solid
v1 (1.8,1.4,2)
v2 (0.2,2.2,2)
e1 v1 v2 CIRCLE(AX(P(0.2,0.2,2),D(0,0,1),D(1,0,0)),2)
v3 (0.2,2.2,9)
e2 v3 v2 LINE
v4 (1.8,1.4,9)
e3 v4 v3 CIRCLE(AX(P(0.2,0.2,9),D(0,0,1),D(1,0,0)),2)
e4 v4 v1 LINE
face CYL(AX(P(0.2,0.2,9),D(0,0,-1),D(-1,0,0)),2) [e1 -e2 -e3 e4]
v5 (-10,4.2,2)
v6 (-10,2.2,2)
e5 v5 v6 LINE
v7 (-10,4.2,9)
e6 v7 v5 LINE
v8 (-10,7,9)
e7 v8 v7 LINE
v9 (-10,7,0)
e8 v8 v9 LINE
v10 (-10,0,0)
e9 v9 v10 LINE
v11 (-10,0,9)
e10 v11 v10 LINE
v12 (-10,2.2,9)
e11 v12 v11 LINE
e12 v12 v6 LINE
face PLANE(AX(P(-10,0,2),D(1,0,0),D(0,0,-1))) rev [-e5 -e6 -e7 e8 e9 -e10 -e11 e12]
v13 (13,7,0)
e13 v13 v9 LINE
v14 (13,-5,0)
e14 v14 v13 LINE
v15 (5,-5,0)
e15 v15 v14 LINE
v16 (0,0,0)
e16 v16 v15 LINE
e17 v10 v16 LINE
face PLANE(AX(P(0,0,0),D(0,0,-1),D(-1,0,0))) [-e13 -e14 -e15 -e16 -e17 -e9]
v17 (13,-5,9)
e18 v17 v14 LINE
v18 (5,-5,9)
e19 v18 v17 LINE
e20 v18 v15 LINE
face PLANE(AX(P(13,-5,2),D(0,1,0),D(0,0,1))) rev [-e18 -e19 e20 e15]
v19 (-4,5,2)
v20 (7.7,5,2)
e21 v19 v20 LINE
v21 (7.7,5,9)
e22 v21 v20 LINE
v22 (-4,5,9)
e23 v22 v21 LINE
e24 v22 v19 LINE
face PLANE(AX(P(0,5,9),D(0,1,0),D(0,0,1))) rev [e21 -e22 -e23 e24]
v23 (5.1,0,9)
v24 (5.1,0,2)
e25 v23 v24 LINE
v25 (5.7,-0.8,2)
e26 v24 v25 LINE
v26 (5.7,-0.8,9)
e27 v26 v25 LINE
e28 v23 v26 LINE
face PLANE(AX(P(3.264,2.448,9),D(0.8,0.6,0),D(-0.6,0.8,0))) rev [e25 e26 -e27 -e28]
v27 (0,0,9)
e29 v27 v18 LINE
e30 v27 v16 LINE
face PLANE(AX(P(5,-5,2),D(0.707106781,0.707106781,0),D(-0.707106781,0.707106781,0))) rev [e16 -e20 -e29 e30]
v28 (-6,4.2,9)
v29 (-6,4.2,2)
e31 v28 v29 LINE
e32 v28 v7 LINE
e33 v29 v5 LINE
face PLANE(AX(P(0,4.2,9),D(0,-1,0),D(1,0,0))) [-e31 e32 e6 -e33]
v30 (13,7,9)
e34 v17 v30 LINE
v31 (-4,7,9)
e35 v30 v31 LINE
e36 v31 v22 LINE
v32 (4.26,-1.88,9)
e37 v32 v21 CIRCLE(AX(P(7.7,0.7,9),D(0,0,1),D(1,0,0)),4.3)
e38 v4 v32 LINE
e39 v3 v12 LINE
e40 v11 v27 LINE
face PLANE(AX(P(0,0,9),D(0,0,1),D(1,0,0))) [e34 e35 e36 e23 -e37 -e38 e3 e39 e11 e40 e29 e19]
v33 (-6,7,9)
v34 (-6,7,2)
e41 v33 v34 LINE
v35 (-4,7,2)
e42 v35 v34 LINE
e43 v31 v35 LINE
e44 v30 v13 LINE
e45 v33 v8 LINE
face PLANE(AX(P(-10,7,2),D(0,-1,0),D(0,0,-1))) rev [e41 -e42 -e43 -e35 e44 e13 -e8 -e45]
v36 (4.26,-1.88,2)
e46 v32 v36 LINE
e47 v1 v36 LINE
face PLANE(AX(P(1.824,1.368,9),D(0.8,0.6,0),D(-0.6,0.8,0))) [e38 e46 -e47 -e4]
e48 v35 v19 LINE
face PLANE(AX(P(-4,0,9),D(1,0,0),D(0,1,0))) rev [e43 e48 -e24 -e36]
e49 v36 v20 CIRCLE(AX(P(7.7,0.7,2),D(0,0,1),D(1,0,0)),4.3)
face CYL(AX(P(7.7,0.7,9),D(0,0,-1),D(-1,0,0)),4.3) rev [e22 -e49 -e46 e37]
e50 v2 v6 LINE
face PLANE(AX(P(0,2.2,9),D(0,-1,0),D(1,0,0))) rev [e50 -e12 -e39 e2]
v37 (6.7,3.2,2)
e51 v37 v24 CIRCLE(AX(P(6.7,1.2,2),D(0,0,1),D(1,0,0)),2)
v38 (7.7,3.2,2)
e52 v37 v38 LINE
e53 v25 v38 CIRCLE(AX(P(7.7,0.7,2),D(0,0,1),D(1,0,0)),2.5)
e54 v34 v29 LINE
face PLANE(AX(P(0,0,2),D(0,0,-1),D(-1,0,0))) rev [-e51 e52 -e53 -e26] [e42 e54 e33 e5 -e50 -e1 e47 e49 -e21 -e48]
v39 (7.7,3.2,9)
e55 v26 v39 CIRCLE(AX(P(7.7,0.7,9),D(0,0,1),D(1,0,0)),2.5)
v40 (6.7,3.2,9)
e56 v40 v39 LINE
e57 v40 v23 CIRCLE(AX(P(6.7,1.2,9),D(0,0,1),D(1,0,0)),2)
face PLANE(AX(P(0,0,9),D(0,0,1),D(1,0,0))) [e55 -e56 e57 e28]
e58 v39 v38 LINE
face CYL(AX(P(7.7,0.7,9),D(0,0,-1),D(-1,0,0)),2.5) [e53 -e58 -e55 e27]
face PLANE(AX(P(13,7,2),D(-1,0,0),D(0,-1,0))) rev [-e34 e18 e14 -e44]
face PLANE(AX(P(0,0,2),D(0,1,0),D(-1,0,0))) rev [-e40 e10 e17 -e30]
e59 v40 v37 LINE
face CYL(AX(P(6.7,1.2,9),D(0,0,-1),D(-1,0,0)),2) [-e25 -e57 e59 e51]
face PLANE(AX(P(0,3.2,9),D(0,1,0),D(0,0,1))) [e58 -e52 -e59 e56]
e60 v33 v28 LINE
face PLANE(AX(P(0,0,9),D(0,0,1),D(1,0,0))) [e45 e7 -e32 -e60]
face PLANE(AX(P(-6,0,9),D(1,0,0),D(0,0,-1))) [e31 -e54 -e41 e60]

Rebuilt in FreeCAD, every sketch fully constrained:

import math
import FreeCAD as App
import Part
import Sketcher

V = App.Vector
Q = App.Units.Quantity


def add_polygon(sketch, points):
    """Adds a closed chain of lines whose ends are joined by coincident constraints."""
    first, n = sketch.GeometryCount, len(points)
    for a, b in zip(points, points[1:] + points[:1]):
        sketch.addGeometry(Part.LineSegment(App.Vector(*a, 0), App.Vector(*b, 0)), False)
    for i in range(n):
        sketch.addConstraint(Sketcher.Constraint("Coincident", first + i, 2, first + (i + 1) % n, 1))

doc = App.newDocument("Part")
body = doc.addObject("PartDesign::Body", "Body")

# Sketch on XY plane
sketch1 = doc.addObject("Sketcher::SketchObject", "Sketch")
body.addObject(sketch1)
sketch1.AttachmentSupport = (doc.XY_Plane, [""])
sketch1.MapMode = "FlatFace"
add_polygon(sketch1, [(-10, 7), (-10, 0), (0, 0), (5, -5), (13, -5), (13, 7)])  # lines 0-5
sketch1.addConstraint([
    Sketcher.Constraint("Vertical", 0),
    Sketcher.Constraint("Horizontal", 1),
    Sketcher.Constraint("Horizontal", 3),
    Sketcher.Constraint("Vertical", 4),
    Sketcher.Constraint("Horizontal", 5),
    Sketcher.Constraint("Coincident", 1, 2, -1, 1),
    Sketcher.Constraint("DistanceX", 1, 1, 1, 2, Q("10 mm")),
    Sketcher.Constraint("DistanceX", 3, 1, 3, 2, Q("8 mm")),
    Sketcher.Constraint("DistanceX", 5, 2, 5, 1, Q("23 mm")),
    Sketcher.Constraint("DistanceY", 0, 2, 0, 1, Q("7 mm")),
    Sketcher.Constraint("DistanceY", 4, 1, 4, 2, Q("12 mm")),
])
pad1 = doc.addObject("PartDesign::Pad", "Pad")
body.addObject(pad1)
pad1.Profile = sketch1
pad1.Length = 2

# Sketch on XY plane
sketch2 = doc.addObject("Sketcher::SketchObject", "Sketch001")
body.addObject(sketch2)
sketch2.AttachmentSupport = (doc.XY_Plane, [""])
sketch2.MapMode = "FlatFace"
sketch2.AttachmentOffset = App.Placement(V(0, 0, 2), App.Rotation())
sketch2.addGeometry(Part.LineSegment(V(13, 7, 0), V(-4, 7, 0)), False)  # 0
sketch2.addGeometry(Part.LineSegment(V(-4, 7, 0), V(-4, 5, 0)), False)  # 1
sketch2.addGeometry(Part.LineSegment(V(-4, 5, 0), V(7.7, 5, 0)), False)  # 2
sketch2.addGeometry(Part.ArcOfCircle(Part.Circle(V(7.7, 0.7, 0), V(0, 0, 1), 4.3), math.radians(-143), math.radians(90)), False)  # 3
sketch2.addGeometry(Part.LineSegment(V(4.3, -1.9, 0), V(1.8, 1.4, 0)), False)  # 4
sketch2.addGeometry(Part.ArcOfCircle(Part.Circle(V(0.2, 0.2, 0), V(0, 0, 1), 2), math.radians(37), math.radians(90)), False)  # 5
sketch2.addGeometry(Part.LineSegment(V(0.2, 2.2, 0), V(-10, 2.2, 0)), False)  # 6
sketch2.addGeometry(Part.LineSegment(V(-10, 2.2, 0), V(-10, 0, 0)), False)  # 7
sketch2.addGeometry(Part.LineSegment(V(-10, 0, 0), V(0, 0, 0)), False)  # 8
sketch2.addGeometry(Part.LineSegment(V(0, 0, 0), V(5, -5, 0)), False)  # 9
sketch2.addGeometry(Part.LineSegment(V(5, -5, 0), V(13, -5, 0)), False)  # 10
sketch2.addGeometry(Part.LineSegment(V(13, -5, 0), V(13, 7, 0)), False)  # 11
add_polygon(sketch2, [(-10, 7), (-10, 4.2), (-6, 4.2), (-6, 7)])  # lines 12-15
sketch2.addGeometry(Part.LineSegment(V(7.7, 3.2, 0), V(6.7, 3.2, 0)), False)  # 16
sketch2.addGeometry(Part.ArcOfCircle(Part.Circle(V(6.7, 1.2, 0), V(0, 0, 1), 2), math.radians(90), math.radians(217)), False)  # 17
sketch2.addGeometry(Part.LineSegment(V(5.1, 0, 0), V(5.7, -0.8, 0)), False)  # 18
sketch2.addGeometry(Part.ArcOfCircle(Part.Circle(V(7.7, 0.7, 0), V(0, 0, 1), 2.5), math.radians(-143), math.radians(90)), False)  # 19
sketch2.addConstraint([
    Sketcher.Constraint("Coincident", 0, 2, 1, 1),
    Sketcher.Constraint("Coincident", 1, 2, 2, 1),
    Sketcher.Constraint("Tangent", 2, 2, 3, 2),
    Sketcher.Constraint("Tangent", 3, 1, 4, 1),
    Sketcher.Constraint("Tangent", 4, 2, 5, 1),
    Sketcher.Constraint("Tangent", 5, 2, 6, 1),
    Sketcher.Constraint("Coincident", 6, 2, 7, 1),
    Sketcher.Constraint("Coincident", 7, 2, 8, 1),
    Sketcher.Constraint("Coincident", 8, 2, 9, 1),
    Sketcher.Constraint("Coincident", 9, 2, 10, 1),
    Sketcher.Constraint("Coincident", 10, 2, 11, 1),
    Sketcher.Constraint("Coincident", 11, 2, 0, 1),
    Sketcher.Constraint("Tangent", 16, 2, 17, 1),
    Sketcher.Constraint("Tangent", 17, 2, 18, 1),
    Sketcher.Constraint("Tangent", 18, 2, 19, 1),
    Sketcher.Constraint("Tangent", 19, 2, 16, 1),
    Sketcher.Constraint("Horizontal", 0),
    Sketcher.Constraint("Vertical", 1),
    Sketcher.Constraint("Horizontal", 2),
    Sketcher.Constraint("Horizontal", 6),
    Sketcher.Constraint("Vertical", 7),
    Sketcher.Constraint("Horizontal", 8),
    Sketcher.Constraint("Horizontal", 10),
    Sketcher.Constraint("Vertical", 11),
    Sketcher.Constraint("Vertical", 12),
    Sketcher.Constraint("Horizontal", 13),
    Sketcher.Constraint("Vertical", 14),
    Sketcher.Constraint("Horizontal", 15),
    Sketcher.Constraint("Horizontal", 16),
    Sketcher.Constraint("Coincident", 8, 2, -1, 1),
    Sketcher.Constraint("Coincident", 19, 3, 3, 3),
    Sketcher.Constraint("Equal", 5, 17),
    Sketcher.Constraint("PointOnObject", 17, 2, -1),
    Sketcher.Constraint("Parallel", 4, 18),
    Sketcher.Constraint("Horizontal", 11, 2, 14, 2),
    Sketcher.Constraint("Vertical", 7, 2, 12, 2),
    Sketcher.Constraint("Radius", 5, Q("2 mm")),
    Sketcher.Constraint("Radius", 3, Q("4.3 mm")),
    Sketcher.Constraint("Radius", 19, Q("2.5 mm")),
    Sketcher.Constraint("DistanceX", 0, 2, 0, 1, Q("17 mm")),
    Sketcher.Constraint("DistanceX", 8, 1, 8, 2, Q("10 mm")),
    Sketcher.Constraint("DistanceX", 10, 1, 10, 2, Q("8 mm")),
    Sketcher.Constraint("DistanceX", 13, 1, 13, 2, Q("4 mm")),
    Sketcher.Constraint("DistanceX", 16, 2, 16, 1, Q("1 mm")),
    Sketcher.Constraint("DistanceY", 1, 2, 1, 1, Q("2 mm")),
    Sketcher.Constraint("DistanceY", 11, 1, 11, 2, Q("12 mm")),
    Sketcher.Constraint("Angle", 9, Q("-45 deg")),
    Sketcher.Constraint("DistanceX", 2, 1, 2, 2, Q("11.7 mm")),
    Sketcher.Constraint("DistanceX", 6, 2, 6, 1, Q("10.2 mm")),
    Sketcher.Constraint("DistanceY", 12, 2, 12, 1, Q("2.8 mm")),
])
pad2 = doc.addObject("PartDesign::Pad", "Pad001")
body.addObject(pad2)
pad2.Profile = sketch2
pad2.Length = 7

doc.recompute()
